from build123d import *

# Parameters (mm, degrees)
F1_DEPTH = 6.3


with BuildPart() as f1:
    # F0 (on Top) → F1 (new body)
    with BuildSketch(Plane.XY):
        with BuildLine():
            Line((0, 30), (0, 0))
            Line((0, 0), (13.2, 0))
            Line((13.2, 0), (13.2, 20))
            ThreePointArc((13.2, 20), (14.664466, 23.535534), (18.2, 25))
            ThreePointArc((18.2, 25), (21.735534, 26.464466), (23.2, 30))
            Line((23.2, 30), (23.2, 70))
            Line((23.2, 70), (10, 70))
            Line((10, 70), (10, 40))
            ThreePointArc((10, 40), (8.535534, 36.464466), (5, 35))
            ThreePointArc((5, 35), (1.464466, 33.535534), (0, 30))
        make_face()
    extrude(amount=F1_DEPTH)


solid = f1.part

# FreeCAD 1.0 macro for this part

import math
import FreeCAD as App
import Part
import Sketcher
Q = App.Units.Quantity

doc = App.newDocument("Part")
body = doc.addObject("PartDesign::Body", "Body")

# Sketch on XY plane
sketch1 = body.newObject("Sketcher::SketchObject", "Sketch")
sketch1.AttachmentSupport = (doc.getObject("XY_Plane"), [""])
sketch1.MapMode = "FlatFace"
sketch1.addGeometry(Part.LineSegment(App.Vector(0, 30, 0), App.Vector(0, 0, 0)), False)
sketch1.addGeometry(Part.LineSegment(App.Vector(0, 0, 0), App.Vector(13.2, 0, 0)), False)
sketch1.addGeometry(Part.LineSegment(App.Vector(13.2, 0, 0), App.Vector(13.2, 20, 0)), False)
sketch1.addGeometry(Part.ArcOfCircle(Part.Circle(App.Vector(18.2, 20, 0), App.Vector(0, 0, 1), 5), math.radians(89.999996), math.radians(180.000004)), False)
sketch1.addGeometry(Part.ArcOfCircle(Part.Circle(App.Vector(18.2, 30, 0), App.Vector(0, 0, 1), 5), math.radians(-90.000004), math.radians(0.000004)), False)
sketch1.addGeometry(Part.LineSegment(App.Vector(23.2, 30, 0), App.Vector(23.2, 70, 0)), False)
sketch1.addGeometry(Part.LineSegment(App.Vector(23.2, 70, 0), App.Vector(10, 70, 0)), False)
sketch1.addGeometry(Part.LineSegment(App.Vector(10, 70, 0), App.Vector(10, 40, 0)), False)
sketch1.addGeometry(Part.ArcOfCircle(Part.Circle(App.Vector(5, 40, 0), App.Vector(0, 0, 1), 5), math.radians(-90.000004), math.radians(0.000004)), False)
sketch1.addGeometry(Part.ArcOfCircle(Part.Circle(App.Vector(5, 30, 0), App.Vector(0, 0, 1), 5), math.radians(89.999996), math.radians(180.000004)), False)
sketch1.addConstraint(Sketcher.Constraint("Coincident", 0, 2, 1, 1))
sketch1.addConstraint(Sketcher.Constraint("Coincident", 1, 2, 2, 1))
sketch1.addConstraint(Sketcher.Constraint("Tangent", 2, 2, 3, 2))
sketch1.addConstraint(Sketcher.Constraint("Tangent", 3, 1, 4, 1))
sketch1.addConstraint(Sketcher.Constraint("Tangent", 4, 2, 5, 1))
sketch1.addConstraint(Sketcher.Constraint("Coincident", 5, 2, 6, 1))
sketch1.addConstraint(Sketcher.Constraint("Coincident", 6, 2, 7, 1))
sketch1.addConstraint(Sketcher.Constraint("Tangent", 7, 2, 8, 2))
sketch1.addConstraint(Sketcher.Constraint("Tangent", 8, 1, 9, 1))
sketch1.addConstraint(Sketcher.Constraint("Tangent", 9, 2, 0, 1))
sketch1.addConstraint(Sketcher.Constraint("Vertical", 0))
sketch1.addConstraint(Sketcher.Constraint("Horizontal", 1))
sketch1.addConstraint(Sketcher.Constraint("Vertical", 2))
sketch1.addConstraint(Sketcher.Constraint("Vertical", 5))
sketch1.addConstraint(Sketcher.Constraint("Horizontal", 6))
sketch1.addConstraint(Sketcher.Constraint("Vertical", 7))
sketch1.addConstraint(Sketcher.Constraint("Coincident", 0, 2, -1, 1))
sketch1.addConstraint(Sketcher.Constraint("Equal", 3, 4))
sketch1.addConstraint(Sketcher.Constraint("Equal", 4, 8))
sketch1.addConstraint(Sketcher.Constraint("Equal", 8, 9))
sketch1.addConstraint(Sketcher.Constraint("Horizontal", 4, 3, 9, 3))
sketch1.addConstraint(Sketcher.Constraint("Vertical", 3, 3, 4, 3))
sketch1.addConstraint(Sketcher.Constraint("Vertical", 8, 3, 9, 3))
sketch1.addConstraint(Sketcher.Constraint("Equal", 0, 7))
sketch1.addConstraint(Sketcher.Constraint("Radius", 3, Q("5 mm")))
sketch1.addConstraint(Sketcher.Constraint("DistanceY", 0, 2, 0, 1, Q("30 mm")))
sketch1.addConstraint(Sketcher.Constraint("DistanceX", 1, 1, 1, 2, Q("13.2 mm")))
pad1 = body.newObject("PartDesign::Pad", "Pad")
pad1.Profile = sketch1
pad1.Length = 6.3

doc.recompute()
